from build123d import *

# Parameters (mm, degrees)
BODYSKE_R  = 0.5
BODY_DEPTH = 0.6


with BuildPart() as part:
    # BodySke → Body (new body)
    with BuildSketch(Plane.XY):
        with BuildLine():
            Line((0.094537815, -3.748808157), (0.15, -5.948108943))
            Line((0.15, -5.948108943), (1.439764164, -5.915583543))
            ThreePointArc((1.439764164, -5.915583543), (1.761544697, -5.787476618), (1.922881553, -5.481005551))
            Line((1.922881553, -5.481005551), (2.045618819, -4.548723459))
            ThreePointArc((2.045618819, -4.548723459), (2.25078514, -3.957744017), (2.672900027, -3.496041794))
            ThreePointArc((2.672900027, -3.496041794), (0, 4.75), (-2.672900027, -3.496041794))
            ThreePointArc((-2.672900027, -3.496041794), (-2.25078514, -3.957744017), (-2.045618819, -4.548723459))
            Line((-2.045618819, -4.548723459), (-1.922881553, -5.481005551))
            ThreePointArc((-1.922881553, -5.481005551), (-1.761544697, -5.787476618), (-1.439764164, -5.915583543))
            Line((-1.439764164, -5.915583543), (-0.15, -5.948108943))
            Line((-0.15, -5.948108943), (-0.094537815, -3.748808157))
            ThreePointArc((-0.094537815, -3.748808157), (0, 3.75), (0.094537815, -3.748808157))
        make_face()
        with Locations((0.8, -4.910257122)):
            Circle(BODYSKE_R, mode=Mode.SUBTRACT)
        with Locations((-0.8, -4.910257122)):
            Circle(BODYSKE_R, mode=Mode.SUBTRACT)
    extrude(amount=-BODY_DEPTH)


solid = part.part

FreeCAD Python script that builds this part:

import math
import FreeCAD as App
import Part
import Sketcher
Q = App.Units.Quantity

doc = App.newDocument("Part")
body = doc.addObject("PartDesign::Body", "Body")

# Sketch on XY plane
sketch1 = body.newObject("Sketcher::SketchObject", "Sketch")
sketch1.AttachmentSupport = (doc.getObject("XY_Plane"), [""])
sketch1.MapMode = "FlatFace"
sketch1.addGeometry([
    Part.LineSegment(App.Vector(0.09, -3.75, 0), App.Vector(0.15, -5.95, 0)),  # 0
    Part.LineSegment(App.Vector(0.15, -5.95, 0), App.Vector(1.44, -5.92, 0)),  # 1
    Part.ArcOfCircle(Part.Circle(App.Vector(1.43, -5.42, 0), App.Vector(0, 0, 1), 0.5), math.radians(-89), math.radians(-7)),  # 2
    Part.LineSegment(App.Vector(1.92, -5.48, 0), App.Vector(2.05, -4.55, 0)),  # 3
    Part.ArcOfCircle(Part.Circle(App.Vector(3.58, -4.75, 0), App.Vector(0, 0, 1), 1.55), math.radians(126), math.radians(173)),  # 4
    Part.ArcOfCircle(Part.Circle(App.Vector(0, 0.19, 0), App.Vector(0, 0, 1), 4.56), math.radians(-54), math.radians(234)),  # 5
    Part.ArcOfCircle(Part.Circle(App.Vector(-3.58, -4.75, 0), App.Vector(0, 0, 1), 1.55), math.radians(7), math.radians(54)),  # 6
    Part.LineSegment(App.Vector(-2.05, -4.55, 0), App.Vector(-1.92, -5.48, 0)),  # 7
    Part.ArcOfCircle(Part.Circle(App.Vector(-1.43, -5.42, 0), App.Vector(0, 0, 1), 0.5), math.radians(-173), math.radians(-91)),  # 8
    Part.LineSegment(App.Vector(-1.44, -5.92, 0), App.Vector(-0.15, -5.95, 0)),  # 9
    Part.LineSegment(App.Vector(-0.15, -5.95, 0), App.Vector(-0.09, -3.75, 0)),  # 10
    Part.ArcOfCircle(Part.Circle(App.Vector(0, 0, 0), App.Vector(0, 0, 1), 3.75), math.radians(-89), math.radians(269)),  # 11
    Part.Circle(App.Vector(-0.8, -4.91, 0), App.Vector(0, 0, 1), 0.5),  # 12
    Part.Circle(App.Vector(0.8, -4.91, 0), App.Vector(0, 0, 1), 0.5),  # 13
], False)
sketch1.addConstraint([
    Sketcher.Constraint("Coincident", 0, 2, 1, 1),
    Sketcher.Constraint("Tangent", 1, 2, 2, 1),
    Sketcher.Constraint("Tangent", 2, 2, 3, 1),
    Sketcher.Constraint("Tangent", 3, 2, 4, 2),
    Sketcher.Constraint("Tangent", 4, 1, 5, 1),
    Sketcher.Constraint("Tangent", 5, 2, 6, 2),
    Sketcher.Constraint("Tangent", 6, 1, 7, 1),
    Sketcher.Constraint("Tangent", 7, 2, 8, 1),
    Sketcher.Constraint("Tangent", 8, 2, 9, 1),
    Sketcher.Constraint("Coincident", 9, 2, 10, 1),
    Sketcher.Constraint("Coincident", 10, 2, 11, 2),
    Sketcher.Constraint("Coincident", 11, 1, 0, 1),
    Sketcher.Constraint("Coincident", 11, 3, -1, 1),
    Sketcher.Constraint("Equal", 4, 6),
    Sketcher.Constraint("Equal", 2, 8),
    Sketcher.Constraint("Equal", 8, 12),
    Sketcher.Constraint("Equal", 12, 13),
    Sketcher.Constraint("Symmetric", 4, 3, 6, 3, -2),
    Sketcher.Constraint("Symmetric", 2, 3, 8, 3, -2),
    Sketcher.Constraint("Symmetric", 12, 3, 13, 3, -2),
    Sketcher.Constraint("Symmetric", 0, 2, 9, 2, -2),
    Sketcher.Constraint("Perpendicular", 0, 1),
    Sketcher.Constraint("Perpendicular", 9, 10),
    Sketcher.Constraint("Diameter", 12, 1.0),
    Sketcher.Constraint("Radius", 11, 3.75),
    Sketcher.Constraint("Angle", 3, Q("82.5 deg")),
    Sketcher.Constraint("Distance", 0, 2.2),
    Sketcher.Constraint("DistanceX", 12, 3, -1, 1, 0.8),
    Sketcher.Constraint("DistanceX", 9, 2, 0, 2, 0.3),
    Sketcher.Constraint("Radius", 4, 1.549621),
    Sketcher.Constraint("Radius", 5, 4.556222),
    Sketcher.Constraint("DistanceX", -1, 1, 4, 1, 2.6729),
    Sketcher.Constraint("DistanceX", 2, 2, 4, 3, 1.659101),
    Sketcher.Constraint("DistanceY", 9, 2, 10, 2, 2.199301),
    Sketcher.Constraint("DistanceY", 0, 2, 13, 3, 1.037852),
])
pad1 = body.newObject("PartDesign::Pad", "Pad")
pad1.Profile = sketch1
pad1.Length = 0.6
pad1.Reversed = True

doc.recompute()
